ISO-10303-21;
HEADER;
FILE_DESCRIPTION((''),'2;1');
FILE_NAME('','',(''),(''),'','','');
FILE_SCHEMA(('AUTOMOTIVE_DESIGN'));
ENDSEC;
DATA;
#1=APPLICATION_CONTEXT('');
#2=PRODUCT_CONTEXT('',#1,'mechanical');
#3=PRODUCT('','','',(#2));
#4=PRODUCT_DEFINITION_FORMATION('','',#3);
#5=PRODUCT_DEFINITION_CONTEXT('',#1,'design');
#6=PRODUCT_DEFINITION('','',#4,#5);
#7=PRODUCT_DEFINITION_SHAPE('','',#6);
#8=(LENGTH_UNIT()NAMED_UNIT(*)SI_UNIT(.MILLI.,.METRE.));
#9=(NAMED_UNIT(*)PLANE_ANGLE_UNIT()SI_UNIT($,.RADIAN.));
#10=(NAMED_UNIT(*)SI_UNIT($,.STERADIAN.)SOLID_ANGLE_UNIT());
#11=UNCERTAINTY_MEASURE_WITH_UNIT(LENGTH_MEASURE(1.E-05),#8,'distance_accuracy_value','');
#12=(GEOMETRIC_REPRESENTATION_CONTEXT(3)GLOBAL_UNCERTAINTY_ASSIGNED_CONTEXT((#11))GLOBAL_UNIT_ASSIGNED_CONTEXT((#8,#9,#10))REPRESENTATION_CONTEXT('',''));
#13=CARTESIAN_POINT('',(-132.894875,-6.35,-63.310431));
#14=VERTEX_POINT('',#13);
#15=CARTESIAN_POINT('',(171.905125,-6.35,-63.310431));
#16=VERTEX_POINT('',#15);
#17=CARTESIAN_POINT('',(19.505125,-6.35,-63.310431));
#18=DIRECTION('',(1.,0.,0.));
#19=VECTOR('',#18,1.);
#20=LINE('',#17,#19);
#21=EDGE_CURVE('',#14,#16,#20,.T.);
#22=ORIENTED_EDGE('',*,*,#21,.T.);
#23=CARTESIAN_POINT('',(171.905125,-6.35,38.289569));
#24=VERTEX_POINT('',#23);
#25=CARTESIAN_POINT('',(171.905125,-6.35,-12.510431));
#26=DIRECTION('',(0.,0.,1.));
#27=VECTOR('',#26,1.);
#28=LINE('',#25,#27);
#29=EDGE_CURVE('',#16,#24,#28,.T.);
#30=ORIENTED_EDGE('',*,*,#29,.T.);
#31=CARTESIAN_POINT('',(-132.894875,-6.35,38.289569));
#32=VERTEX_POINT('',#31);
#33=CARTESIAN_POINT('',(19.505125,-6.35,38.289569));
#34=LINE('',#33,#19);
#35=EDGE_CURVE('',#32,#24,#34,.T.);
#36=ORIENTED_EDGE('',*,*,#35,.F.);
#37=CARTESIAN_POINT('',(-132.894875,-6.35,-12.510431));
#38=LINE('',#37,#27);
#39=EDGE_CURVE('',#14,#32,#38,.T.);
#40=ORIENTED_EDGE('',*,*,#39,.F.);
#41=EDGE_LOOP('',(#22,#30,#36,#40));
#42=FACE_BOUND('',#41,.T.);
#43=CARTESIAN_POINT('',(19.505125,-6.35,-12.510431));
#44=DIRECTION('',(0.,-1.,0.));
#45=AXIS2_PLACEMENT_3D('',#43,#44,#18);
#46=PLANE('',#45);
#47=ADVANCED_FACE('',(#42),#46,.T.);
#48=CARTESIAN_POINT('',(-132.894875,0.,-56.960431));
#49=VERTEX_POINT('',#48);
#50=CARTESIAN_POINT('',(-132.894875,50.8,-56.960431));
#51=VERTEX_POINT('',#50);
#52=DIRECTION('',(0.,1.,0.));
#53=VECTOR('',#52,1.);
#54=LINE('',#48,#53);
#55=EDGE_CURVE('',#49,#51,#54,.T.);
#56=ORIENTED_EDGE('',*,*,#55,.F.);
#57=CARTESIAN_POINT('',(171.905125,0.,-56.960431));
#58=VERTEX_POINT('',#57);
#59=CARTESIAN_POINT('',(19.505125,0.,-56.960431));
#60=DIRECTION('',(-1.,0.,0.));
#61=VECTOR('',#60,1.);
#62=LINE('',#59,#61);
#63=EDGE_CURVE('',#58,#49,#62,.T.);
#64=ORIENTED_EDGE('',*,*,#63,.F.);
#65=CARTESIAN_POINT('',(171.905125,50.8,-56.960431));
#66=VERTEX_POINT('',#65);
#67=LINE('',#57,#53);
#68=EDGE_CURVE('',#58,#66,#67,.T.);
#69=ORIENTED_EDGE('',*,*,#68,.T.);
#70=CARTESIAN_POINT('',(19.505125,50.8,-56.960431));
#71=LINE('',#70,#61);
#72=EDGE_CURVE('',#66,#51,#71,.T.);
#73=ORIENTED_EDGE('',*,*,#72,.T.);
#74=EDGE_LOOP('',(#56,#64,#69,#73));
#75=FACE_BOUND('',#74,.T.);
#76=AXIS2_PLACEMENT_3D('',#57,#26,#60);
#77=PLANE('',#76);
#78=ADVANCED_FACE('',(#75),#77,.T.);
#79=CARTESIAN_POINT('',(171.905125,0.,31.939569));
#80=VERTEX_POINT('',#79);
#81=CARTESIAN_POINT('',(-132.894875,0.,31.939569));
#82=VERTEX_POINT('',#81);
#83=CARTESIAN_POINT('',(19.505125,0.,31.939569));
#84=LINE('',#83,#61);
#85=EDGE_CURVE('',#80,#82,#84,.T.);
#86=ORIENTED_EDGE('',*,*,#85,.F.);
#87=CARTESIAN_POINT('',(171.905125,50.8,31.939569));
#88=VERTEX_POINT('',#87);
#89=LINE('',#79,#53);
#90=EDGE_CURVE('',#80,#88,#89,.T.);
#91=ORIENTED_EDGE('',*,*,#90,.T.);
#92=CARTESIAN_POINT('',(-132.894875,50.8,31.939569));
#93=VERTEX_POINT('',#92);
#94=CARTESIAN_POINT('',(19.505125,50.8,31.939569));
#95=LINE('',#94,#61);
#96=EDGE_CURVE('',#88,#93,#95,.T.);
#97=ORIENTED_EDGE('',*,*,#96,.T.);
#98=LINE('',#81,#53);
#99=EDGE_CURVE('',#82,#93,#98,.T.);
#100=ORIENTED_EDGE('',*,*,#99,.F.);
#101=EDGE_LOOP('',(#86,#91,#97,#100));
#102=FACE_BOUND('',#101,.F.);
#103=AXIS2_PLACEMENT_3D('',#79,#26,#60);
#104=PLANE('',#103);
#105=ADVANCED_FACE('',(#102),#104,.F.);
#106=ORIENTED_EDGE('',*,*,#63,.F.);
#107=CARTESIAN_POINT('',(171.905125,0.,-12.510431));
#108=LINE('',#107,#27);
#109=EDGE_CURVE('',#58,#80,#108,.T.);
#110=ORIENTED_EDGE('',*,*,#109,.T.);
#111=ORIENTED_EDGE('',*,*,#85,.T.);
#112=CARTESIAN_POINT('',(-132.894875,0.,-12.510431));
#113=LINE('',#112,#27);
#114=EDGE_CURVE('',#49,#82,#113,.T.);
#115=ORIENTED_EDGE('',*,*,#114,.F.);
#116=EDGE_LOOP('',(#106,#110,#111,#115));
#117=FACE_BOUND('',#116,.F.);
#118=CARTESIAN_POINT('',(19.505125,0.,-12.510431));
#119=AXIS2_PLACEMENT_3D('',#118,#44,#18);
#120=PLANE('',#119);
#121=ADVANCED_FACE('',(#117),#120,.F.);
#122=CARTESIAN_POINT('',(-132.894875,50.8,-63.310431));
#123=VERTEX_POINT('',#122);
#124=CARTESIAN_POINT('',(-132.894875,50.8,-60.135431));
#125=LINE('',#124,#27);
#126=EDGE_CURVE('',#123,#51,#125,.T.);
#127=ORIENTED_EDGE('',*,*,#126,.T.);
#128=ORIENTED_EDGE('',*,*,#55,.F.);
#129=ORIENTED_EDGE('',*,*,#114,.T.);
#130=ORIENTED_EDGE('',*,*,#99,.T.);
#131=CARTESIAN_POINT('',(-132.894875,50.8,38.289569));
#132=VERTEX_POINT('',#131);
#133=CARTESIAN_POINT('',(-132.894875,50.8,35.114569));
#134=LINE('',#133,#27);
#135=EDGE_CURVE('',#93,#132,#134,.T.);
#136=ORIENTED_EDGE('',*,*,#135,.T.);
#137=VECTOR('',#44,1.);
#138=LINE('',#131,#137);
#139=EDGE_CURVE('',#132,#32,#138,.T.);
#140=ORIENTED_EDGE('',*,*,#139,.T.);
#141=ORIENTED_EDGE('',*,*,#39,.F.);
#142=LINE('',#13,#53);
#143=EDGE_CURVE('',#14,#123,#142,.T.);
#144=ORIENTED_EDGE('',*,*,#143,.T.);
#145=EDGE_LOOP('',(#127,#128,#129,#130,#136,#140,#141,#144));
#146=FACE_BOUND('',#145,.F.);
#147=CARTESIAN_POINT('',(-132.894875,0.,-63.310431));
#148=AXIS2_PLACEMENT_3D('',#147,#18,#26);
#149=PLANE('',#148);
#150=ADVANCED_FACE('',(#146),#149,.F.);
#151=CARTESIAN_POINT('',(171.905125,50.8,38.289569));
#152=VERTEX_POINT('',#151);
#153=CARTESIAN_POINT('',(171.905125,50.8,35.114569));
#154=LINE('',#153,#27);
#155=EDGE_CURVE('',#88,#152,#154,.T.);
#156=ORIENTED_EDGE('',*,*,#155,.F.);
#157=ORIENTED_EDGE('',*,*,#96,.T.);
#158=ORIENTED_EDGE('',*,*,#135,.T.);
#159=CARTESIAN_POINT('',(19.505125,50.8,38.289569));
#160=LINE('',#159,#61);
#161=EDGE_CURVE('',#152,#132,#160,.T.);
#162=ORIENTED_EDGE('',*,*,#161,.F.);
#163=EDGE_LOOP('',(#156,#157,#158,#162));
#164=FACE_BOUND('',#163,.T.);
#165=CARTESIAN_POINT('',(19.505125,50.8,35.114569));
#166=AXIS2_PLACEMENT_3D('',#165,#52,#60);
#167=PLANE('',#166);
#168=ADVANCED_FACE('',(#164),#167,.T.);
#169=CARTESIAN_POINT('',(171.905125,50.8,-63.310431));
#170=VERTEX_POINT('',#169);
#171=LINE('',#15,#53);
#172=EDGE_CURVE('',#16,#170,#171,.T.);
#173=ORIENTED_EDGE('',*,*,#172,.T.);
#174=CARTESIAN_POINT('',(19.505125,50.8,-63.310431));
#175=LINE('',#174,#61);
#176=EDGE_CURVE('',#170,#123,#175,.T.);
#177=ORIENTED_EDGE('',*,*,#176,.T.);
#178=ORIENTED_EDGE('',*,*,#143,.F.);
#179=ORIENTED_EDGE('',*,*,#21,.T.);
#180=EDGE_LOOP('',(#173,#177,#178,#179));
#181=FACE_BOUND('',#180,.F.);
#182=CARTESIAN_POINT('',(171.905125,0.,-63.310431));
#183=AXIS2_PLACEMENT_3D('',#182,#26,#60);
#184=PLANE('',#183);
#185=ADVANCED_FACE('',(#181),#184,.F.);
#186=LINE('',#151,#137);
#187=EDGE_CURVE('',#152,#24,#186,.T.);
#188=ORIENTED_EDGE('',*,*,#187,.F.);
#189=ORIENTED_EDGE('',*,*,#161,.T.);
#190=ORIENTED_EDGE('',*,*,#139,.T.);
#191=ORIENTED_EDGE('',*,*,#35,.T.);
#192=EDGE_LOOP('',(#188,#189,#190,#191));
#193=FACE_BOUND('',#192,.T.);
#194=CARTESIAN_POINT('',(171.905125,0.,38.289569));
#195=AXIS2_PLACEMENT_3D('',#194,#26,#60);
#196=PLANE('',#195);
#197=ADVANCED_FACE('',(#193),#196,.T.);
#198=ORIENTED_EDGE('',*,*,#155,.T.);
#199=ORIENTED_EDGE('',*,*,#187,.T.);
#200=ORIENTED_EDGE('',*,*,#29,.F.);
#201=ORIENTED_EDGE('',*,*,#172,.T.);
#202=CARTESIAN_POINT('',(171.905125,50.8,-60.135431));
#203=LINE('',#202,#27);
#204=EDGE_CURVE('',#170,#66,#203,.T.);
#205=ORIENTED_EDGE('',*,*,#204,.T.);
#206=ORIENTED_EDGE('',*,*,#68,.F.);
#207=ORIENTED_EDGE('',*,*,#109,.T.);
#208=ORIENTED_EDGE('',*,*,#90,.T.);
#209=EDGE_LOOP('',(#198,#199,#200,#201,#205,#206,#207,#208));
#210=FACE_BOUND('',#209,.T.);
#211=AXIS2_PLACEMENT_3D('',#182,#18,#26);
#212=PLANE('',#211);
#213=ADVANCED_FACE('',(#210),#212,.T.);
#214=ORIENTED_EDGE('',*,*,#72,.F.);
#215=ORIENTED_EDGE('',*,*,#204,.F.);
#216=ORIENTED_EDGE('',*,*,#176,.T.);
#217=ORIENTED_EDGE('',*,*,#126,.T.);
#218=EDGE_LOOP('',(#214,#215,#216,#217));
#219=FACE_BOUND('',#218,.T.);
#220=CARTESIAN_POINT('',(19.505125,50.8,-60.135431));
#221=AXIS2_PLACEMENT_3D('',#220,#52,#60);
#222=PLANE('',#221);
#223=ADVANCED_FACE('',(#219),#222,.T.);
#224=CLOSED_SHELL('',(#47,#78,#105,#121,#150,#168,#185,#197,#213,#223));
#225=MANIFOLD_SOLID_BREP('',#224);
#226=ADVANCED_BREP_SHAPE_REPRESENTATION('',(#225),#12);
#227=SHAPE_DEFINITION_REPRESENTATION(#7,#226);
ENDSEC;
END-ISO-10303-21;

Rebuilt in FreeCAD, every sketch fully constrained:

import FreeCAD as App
import Part
import Sketcher

V = App.Vector
Q = App.Units.Quantity

doc = App.newDocument("Part")
body = doc.addObject("PartDesign::Body", "Body")

sketch1 = doc.addObject("Sketcher::SketchObject", "Sketch")
body.addObject(sketch1)
sketch1.AttachmentSupport = (doc.XZ_Plane, [""])
sketch1.MapMode = "FlatFace"
sketch1.addGeometry([
    Part.LineSegment(V(-133, 38, 0), V(-133, -63, 0)),
    Part.LineSegment(V(-133, -63, 0), V(172, -63, 0)),
    Part.LineSegment(V(172, -63, 0), V(172, 38, 0)),
    Part.LineSegment(V(172, 38, 0), V(-133, 38, 0)),
], False)
sketch1.addConstraint([
    Sketcher.Constraint("Coincident", 0, 2, 1, 1),
    Sketcher.Constraint("Coincident", 1, 2, 2, 1),
    Sketcher.Constraint("Coincident", 2, 2, 3, 1),
    Sketcher.Constraint("Coincident", 3, 2, 0, 1),
    Sketcher.Constraint("Vertical", 0),
    Sketcher.Constraint("Horizontal", 1),
    Sketcher.Constraint("Vertical", 2),
    Sketcher.Constraint("Horizontal", 3),
    Sketcher.Constraint("DistanceX", 1, 1, 1, 2, Q("12 in")),
    Sketcher.Constraint("DistanceY", 0, 2, 0, 1, Q("4 in")),
    Sketcher.Constraint("DistanceY", 0, 2, -1, 1, Q("63.310431 mm")),
    Sketcher.Constraint("DistanceX", 0, 2, -1, 1, Q("132.894875 mm")),
])
pad1 = doc.addObject("PartDesign::Pad", "Pad")
body.addObject(pad1)
pad1.Profile = sketch1
pad1.Length = Q("0.25 in")

sketch2 = doc.addObject("Sketcher::SketchObject", "Sketch001")
body.addObject(sketch2)
sketch2.AttachmentSupport = (doc.XZ_Plane, [""])
sketch2.MapMode = "FlatFace"
sketch2.addGeometry([
    Part.LineSegment(V(172, 38, 0), V(172, 32, 0)),
    Part.LineSegment(V(172, 32, 0), V(-133, 32, 0)),
    Part.LineSegment(V(-133, 32, 0), V(-133, 38, 0)),
    Part.LineSegment(V(-133, 38, 0), V(172, 38, 0)),
], False)
sketch2.addConstraint([
    Sketcher.Constraint("Coincident", 0, 2, 1, 1),
    Sketcher.Constraint("Coincident", 1, 2, 2, 1),
    Sketcher.Constraint("Coincident", 2, 2, 3, 1),
    Sketcher.Constraint("Coincident", 3, 2, 0, 1),
    Sketcher.Constraint("Vertical", 0),
    Sketcher.Constraint("Horizontal", 1),
    Sketcher.Constraint("Vertical", 2),
    Sketcher.Constraint("Horizontal", 3),
    Sketcher.Constraint("DistanceX", 1, 2, 1, 1, Q("12 in")),
    Sketcher.Constraint("DistanceY", 0, 2, 0, 1, Q("0.25 in")),
    Sketcher.Constraint("DistanceY", -1, 1, 0, 2, Q("31.939569 mm")),
    Sketcher.Constraint("DistanceX", -1, 1, 0, 2, Q("171.905125 mm")),
])
pad2 = doc.addObject("PartDesign::Pad", "Pad001")
body.addObject(pad2)
pad2.Profile = sketch2
pad2.Length = Q("2 in")
pad2.Reversed = True

sketch3 = doc.addObject("Sketcher::SketchObject", "Sketch002")
body.addObject(sketch3)
sketch3.AttachmentSupport = (doc.XZ_Plane, [""])
sketch3.MapMode = "FlatFace"
sketch3.addGeometry([
    Part.LineSegment(V(172, -57, 0), V(172, -63, 0)),
    Part.LineSegment(V(172, -63, 0), V(-133, -63, 0)),
    Part.LineSegment(V(-133, -63, 0), V(-133, -57, 0)),
    Part.LineSegment(V(-133, -57, 0), V(172, -57, 0)),
], False)
sketch3.addConstraint([
    Sketcher.Constraint("Coincident", 0, 2, 1, 1),
    Sketcher.Constraint("Coincident", 1, 2, 2, 1),
    Sketcher.Constraint("Coincident", 2, 2, 3, 1),
    Sketcher.Constraint("Coincident", 3, 2, 0, 1),
    Sketcher.Constraint("Vertical", 0),
    Sketcher.Constraint("Horizontal", 1),
    Sketcher.Constraint("Vertical", 2),
    Sketcher.Constraint("Horizontal", 3),
    Sketcher.Constraint("DistanceX", 1, 2, 1, 1, Q("12 in")),
    Sketcher.Constraint("DistanceY", 0, 2, 0, 1, Q("0.25 in")),
    Sketcher.Constraint("DistanceY", 0, 2, -1, 1, Q("63.310431 mm")),
    Sketcher.Constraint("DistanceX", -1, 1, 0, 2, Q("171.905125 mm")),
])
pad3 = doc.addObject("PartDesign::Pad", "Pad002")
body.addObject(pad3)
pad3.Profile = sketch3
pad3.Length = Q("2 in")
pad3.Reversed = True

doc.recompute()
